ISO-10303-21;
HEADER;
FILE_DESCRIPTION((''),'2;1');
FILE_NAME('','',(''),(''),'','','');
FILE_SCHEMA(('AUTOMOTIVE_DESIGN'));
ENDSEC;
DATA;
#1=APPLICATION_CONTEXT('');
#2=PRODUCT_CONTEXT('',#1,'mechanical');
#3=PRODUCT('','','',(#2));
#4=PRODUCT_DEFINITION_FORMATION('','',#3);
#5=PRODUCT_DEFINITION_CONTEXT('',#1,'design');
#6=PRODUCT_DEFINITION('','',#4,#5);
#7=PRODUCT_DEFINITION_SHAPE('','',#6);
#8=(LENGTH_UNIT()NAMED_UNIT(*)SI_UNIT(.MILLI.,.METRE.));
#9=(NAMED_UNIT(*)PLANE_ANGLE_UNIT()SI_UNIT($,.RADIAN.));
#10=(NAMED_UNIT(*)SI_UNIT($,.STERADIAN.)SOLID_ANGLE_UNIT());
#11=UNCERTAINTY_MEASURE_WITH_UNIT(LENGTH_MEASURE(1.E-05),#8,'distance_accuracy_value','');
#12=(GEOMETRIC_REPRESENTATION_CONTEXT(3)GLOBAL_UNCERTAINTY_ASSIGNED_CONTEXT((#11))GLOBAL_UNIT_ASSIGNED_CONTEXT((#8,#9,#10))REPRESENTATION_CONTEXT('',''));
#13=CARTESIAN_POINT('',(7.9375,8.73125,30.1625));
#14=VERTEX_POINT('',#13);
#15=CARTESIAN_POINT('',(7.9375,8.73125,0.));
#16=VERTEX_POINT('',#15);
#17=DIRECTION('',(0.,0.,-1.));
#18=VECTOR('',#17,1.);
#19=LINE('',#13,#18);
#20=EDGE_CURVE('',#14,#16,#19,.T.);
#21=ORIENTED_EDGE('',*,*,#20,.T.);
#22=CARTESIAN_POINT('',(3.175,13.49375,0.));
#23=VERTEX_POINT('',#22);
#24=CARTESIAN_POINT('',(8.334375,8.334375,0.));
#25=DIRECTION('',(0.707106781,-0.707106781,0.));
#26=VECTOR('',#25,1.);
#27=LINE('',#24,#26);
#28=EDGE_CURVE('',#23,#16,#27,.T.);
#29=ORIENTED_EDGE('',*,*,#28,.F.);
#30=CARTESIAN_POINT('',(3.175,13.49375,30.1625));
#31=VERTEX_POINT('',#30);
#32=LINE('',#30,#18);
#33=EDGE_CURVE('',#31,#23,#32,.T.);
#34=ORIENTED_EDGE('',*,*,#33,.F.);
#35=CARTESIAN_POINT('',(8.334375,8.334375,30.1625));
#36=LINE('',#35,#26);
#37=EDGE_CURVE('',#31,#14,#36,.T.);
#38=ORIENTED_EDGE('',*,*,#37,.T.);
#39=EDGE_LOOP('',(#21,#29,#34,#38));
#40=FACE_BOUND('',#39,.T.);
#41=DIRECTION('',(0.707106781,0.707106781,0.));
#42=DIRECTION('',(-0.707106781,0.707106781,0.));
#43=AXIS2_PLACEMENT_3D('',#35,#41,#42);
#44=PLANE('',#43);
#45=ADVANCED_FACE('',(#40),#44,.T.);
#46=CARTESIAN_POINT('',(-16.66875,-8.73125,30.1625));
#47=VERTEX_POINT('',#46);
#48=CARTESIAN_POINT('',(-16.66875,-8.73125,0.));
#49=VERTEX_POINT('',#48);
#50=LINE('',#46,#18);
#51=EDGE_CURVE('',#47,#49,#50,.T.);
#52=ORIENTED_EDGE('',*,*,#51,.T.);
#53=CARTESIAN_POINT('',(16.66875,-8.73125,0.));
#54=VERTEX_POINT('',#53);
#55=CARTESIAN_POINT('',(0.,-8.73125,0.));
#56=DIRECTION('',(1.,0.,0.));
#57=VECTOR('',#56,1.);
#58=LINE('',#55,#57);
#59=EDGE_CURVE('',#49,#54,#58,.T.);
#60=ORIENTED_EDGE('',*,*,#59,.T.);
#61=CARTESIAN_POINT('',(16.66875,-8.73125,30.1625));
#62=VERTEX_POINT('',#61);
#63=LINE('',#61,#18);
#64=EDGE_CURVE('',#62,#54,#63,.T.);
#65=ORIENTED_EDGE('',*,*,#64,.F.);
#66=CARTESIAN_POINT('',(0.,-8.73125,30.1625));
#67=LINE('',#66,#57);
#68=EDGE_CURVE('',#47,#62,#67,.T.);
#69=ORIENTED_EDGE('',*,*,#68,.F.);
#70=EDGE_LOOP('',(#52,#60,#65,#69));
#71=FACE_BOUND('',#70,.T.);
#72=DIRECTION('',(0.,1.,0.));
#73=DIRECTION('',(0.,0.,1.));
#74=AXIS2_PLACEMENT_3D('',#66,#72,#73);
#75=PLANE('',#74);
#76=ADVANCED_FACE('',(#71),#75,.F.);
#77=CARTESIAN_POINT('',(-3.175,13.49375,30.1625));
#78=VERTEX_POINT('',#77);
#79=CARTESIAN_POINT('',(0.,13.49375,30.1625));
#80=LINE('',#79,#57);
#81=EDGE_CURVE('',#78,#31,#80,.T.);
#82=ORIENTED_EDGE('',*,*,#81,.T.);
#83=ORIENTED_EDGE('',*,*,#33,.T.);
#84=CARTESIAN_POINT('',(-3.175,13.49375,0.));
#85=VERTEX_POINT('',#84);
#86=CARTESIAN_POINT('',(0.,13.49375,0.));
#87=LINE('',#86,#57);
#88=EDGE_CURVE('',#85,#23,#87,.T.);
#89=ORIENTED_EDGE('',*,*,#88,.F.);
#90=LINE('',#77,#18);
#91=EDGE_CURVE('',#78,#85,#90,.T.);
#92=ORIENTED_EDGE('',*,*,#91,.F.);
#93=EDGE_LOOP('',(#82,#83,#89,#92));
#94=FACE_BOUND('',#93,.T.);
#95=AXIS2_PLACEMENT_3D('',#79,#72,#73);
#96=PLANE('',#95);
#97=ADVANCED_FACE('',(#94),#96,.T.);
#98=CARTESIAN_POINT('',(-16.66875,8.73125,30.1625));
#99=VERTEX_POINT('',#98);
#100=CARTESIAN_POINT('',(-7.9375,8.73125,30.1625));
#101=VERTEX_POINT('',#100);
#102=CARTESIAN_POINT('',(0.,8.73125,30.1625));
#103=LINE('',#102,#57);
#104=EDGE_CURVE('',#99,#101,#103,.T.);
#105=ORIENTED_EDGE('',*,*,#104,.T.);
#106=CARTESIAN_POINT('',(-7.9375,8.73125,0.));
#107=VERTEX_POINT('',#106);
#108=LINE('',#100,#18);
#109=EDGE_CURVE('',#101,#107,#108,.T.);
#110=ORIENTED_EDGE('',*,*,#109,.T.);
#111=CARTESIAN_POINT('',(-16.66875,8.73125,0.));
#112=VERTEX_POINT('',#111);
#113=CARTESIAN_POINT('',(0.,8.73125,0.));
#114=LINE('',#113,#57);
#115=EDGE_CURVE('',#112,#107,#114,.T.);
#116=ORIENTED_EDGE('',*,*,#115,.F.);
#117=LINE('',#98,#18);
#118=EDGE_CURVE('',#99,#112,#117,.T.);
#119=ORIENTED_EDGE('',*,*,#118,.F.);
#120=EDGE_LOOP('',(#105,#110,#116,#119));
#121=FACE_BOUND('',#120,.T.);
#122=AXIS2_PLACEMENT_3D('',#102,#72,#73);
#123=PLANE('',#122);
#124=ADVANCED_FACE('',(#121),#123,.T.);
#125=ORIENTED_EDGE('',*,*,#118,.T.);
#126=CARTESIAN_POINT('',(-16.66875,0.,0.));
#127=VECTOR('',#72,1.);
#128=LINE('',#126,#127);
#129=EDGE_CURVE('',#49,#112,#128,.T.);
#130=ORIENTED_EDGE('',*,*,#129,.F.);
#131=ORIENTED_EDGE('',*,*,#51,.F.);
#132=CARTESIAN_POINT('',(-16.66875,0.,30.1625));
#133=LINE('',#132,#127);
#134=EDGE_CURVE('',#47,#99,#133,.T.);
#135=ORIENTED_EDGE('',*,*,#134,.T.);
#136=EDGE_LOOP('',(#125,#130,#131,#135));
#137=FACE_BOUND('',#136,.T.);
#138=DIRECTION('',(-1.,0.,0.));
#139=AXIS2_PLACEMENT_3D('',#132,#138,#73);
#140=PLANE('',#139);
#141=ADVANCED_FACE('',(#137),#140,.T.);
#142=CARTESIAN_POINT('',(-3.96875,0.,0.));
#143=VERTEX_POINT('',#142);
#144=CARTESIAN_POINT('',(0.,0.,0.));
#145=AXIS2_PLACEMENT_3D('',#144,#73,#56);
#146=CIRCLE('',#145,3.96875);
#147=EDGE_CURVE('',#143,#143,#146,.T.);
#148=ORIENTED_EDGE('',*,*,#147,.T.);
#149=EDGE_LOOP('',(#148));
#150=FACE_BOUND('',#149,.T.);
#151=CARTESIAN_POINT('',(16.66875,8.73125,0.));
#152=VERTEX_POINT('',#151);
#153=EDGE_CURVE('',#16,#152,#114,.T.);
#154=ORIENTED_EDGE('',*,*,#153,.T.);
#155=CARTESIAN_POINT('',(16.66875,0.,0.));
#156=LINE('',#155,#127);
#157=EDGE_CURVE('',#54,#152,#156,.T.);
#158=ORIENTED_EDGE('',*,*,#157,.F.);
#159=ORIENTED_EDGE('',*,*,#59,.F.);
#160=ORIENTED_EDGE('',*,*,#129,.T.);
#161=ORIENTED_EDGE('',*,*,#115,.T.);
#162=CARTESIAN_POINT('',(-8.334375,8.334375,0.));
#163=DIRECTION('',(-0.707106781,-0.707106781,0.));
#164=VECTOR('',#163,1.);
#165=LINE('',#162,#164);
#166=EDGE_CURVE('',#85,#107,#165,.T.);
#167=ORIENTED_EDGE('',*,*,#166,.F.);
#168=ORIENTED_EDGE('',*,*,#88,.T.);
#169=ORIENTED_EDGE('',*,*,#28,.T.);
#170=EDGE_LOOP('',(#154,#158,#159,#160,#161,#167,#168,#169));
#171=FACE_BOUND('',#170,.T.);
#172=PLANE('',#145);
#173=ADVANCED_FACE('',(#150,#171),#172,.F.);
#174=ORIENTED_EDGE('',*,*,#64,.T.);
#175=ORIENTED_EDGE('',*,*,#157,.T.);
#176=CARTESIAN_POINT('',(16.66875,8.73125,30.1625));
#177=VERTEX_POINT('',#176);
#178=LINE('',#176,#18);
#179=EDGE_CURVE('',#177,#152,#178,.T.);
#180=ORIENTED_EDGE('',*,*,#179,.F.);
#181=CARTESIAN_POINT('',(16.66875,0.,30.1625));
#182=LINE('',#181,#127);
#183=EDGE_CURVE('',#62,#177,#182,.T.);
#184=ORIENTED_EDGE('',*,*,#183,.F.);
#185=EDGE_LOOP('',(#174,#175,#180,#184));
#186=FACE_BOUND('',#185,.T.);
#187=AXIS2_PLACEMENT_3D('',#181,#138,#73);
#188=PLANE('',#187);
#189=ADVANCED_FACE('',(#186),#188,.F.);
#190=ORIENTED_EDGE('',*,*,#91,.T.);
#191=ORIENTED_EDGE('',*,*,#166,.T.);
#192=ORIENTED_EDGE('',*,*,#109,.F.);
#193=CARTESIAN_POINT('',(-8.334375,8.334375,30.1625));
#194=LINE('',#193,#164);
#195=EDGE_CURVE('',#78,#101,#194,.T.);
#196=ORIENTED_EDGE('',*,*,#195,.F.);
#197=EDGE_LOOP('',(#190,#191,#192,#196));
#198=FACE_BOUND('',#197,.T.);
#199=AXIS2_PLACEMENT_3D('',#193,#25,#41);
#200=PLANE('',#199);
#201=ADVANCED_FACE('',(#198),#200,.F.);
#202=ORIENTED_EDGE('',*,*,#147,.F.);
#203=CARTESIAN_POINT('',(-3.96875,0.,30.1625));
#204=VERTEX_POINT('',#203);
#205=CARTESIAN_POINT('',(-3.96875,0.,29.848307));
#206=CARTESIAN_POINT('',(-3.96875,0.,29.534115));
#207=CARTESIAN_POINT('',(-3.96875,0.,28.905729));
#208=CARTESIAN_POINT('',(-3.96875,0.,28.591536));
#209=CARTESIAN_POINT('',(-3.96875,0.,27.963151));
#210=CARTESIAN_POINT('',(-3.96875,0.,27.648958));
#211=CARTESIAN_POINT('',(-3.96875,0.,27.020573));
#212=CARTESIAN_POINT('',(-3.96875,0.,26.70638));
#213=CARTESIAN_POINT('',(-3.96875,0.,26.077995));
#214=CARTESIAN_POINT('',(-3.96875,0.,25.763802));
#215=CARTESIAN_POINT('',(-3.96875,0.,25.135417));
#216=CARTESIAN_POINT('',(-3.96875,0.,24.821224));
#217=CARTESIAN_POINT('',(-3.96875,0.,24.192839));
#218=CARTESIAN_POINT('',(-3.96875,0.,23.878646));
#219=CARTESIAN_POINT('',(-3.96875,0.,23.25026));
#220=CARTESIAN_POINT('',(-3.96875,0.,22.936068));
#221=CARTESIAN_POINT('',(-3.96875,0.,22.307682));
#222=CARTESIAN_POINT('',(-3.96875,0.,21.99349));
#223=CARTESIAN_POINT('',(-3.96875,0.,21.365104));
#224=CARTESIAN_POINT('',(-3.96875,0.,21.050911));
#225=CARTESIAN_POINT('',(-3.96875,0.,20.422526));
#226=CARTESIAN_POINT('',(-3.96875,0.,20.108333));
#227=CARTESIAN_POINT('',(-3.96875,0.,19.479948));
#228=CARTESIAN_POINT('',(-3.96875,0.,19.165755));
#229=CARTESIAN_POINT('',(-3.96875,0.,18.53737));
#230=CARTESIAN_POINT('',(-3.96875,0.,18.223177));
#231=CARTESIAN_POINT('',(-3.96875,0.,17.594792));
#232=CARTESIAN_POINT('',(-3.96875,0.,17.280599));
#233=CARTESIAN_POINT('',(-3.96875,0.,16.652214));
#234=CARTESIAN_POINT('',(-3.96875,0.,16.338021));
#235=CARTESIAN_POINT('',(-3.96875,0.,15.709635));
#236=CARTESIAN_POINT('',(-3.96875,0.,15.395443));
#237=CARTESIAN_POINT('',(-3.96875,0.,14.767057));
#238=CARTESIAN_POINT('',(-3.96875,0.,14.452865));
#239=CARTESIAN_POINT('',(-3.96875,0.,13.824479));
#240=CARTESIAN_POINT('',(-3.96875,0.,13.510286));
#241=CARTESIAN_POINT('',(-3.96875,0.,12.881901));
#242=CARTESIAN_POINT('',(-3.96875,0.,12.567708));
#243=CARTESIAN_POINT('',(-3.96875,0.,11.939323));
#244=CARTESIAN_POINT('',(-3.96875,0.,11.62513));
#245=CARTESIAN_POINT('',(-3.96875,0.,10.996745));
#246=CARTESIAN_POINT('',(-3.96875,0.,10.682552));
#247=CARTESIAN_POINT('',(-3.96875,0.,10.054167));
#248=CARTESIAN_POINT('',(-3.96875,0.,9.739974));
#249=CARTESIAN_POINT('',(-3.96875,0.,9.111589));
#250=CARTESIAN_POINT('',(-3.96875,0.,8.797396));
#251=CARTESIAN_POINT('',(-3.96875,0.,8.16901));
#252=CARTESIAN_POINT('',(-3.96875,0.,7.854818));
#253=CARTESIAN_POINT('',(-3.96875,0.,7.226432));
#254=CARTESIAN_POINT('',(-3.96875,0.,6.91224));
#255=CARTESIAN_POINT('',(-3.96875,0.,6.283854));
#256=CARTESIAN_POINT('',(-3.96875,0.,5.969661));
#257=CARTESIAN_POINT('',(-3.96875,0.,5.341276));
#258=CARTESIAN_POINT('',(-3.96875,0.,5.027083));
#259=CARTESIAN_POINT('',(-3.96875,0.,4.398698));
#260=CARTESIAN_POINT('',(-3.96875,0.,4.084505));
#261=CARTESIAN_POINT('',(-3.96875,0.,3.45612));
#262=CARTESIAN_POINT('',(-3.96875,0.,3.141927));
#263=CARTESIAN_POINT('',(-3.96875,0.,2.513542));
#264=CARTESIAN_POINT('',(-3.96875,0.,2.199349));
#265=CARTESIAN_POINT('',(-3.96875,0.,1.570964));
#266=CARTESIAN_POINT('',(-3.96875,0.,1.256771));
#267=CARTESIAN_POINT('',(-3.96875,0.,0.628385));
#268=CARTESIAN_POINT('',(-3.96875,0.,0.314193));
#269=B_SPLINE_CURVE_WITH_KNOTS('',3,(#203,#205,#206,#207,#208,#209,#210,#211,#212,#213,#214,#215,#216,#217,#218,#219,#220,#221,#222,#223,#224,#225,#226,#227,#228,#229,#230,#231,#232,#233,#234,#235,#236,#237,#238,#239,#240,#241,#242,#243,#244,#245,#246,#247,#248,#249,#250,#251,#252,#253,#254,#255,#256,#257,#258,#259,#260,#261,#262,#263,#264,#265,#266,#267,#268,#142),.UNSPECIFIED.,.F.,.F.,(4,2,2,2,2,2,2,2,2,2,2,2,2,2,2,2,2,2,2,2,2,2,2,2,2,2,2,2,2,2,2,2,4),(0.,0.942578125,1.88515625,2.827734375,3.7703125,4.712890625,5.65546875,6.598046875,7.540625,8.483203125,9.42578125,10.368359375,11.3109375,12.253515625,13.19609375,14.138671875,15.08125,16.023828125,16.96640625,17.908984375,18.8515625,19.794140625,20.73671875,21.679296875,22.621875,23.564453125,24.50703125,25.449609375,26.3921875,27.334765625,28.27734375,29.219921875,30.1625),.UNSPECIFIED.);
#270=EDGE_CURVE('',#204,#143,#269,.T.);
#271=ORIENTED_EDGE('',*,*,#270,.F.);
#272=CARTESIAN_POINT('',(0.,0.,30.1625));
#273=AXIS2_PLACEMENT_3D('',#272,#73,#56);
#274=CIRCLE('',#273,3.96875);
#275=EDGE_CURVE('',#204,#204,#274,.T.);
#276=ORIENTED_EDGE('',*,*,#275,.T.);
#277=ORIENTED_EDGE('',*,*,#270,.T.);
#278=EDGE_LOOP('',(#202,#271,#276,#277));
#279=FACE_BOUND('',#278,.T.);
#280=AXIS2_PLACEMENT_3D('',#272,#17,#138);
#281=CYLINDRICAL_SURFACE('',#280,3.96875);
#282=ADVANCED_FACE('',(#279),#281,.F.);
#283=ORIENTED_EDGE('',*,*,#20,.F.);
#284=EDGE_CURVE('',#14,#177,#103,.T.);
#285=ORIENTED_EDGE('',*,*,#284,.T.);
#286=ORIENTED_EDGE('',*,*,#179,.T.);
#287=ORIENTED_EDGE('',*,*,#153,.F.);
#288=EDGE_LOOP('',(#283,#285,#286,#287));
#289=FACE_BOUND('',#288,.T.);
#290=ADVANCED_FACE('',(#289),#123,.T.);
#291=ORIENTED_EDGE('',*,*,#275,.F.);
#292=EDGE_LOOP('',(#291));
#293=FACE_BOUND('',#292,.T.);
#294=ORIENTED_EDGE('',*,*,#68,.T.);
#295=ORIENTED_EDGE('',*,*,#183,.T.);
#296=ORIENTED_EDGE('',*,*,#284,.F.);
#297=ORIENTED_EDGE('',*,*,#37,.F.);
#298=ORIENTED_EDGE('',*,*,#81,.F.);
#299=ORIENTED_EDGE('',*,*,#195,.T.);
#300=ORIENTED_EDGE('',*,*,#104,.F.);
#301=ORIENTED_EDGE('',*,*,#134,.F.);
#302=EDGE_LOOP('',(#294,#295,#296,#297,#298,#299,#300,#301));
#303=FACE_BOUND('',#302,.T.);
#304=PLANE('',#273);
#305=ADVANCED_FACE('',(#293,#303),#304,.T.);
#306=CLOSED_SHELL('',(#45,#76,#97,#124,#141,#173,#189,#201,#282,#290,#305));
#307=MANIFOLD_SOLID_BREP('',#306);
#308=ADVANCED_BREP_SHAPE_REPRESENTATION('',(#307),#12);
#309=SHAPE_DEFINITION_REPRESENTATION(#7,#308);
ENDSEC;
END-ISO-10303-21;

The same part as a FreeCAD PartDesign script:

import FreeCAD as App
import Part
import Sketcher

V = App.Vector
Q = App.Units.Quantity


def add_polygon(sketch, points):
    """Adds a closed chain of lines whose ends are joined by coincident constraints."""
    first, n = sketch.GeometryCount, len(points)
    for a, b in zip(points, points[1:] + points[:1]):
        sketch.addGeometry(Part.LineSegment(App.Vector(*a, 0), App.Vector(*b, 0)), False)
    for i in range(n):
        sketch.addConstraint(Sketcher.Constraint("Coincident", first + i, 2, first + (i + 1) % n, 1))

doc = App.newDocument("Part")
body = doc.addObject("PartDesign::Body", "Body")

sketch1 = body.newObject("Sketcher::SketchObject", "Sketch")
sketch1.AttachmentSupport = (doc.getObject("XY_Plane"), [""])
sketch1.MapMode = "FlatFace"
add_polygon(sketch1, [(3.175, 13.49375), (-3.175, 13.49375), (-7.9375, 8.73125), (-16.66875, 8.73125), (-16.66875, -8.73125), (16.66875, -8.73125), (16.66875, 8.73125), (7.9375, 8.73125)])
sketch1.addGeometry(Part.Circle(V(0, 0, 0), V(0, 0, 1), 3.96875), False)
sketch1.addConstraint([
    Sketcher.Constraint("Horizontal", 0),
    Sketcher.Constraint("Horizontal", 2),
    Sketcher.Constraint("Vertical", 3),
    Sketcher.Constraint("Horizontal", 4),
    Sketcher.Constraint("Vertical", 5),
    Sketcher.Constraint("Horizontal", 6),
    Sketcher.Constraint("Coincident", 8, 3, -1, 1),
    Sketcher.Constraint("Symmetric", 2, 2, 4, 2, -1, 1),
    Sketcher.Constraint("Symmetric", 1, 2, 6, 2, -2),
    Sketcher.Constraint("Perpendicular", 1, 7),
    Sketcher.Constraint("Equal", 1, 7),
    Sketcher.Constraint("Diameter", 8, Q("0.3125 in")),
    Sketcher.Constraint("DistanceX", 0, 2, 0, 1, Q("0.25 in")),
    Sketcher.Constraint("DistanceX", 2, 2, 2, 1, Q("0.34375 in")),
    Sketcher.Constraint("DistanceX", 4, 1, 4, 2, Q("1.3125 in")),
    Sketcher.Constraint("DistanceY", 3, 2, 3, 1, Q("0.6875 in")),
])
pad1 = body.newObject("PartDesign::Pad", "Pad")
pad1.Profile = sketch1
pad1.Length = Q("1.1875 in")

doc.recompute()
